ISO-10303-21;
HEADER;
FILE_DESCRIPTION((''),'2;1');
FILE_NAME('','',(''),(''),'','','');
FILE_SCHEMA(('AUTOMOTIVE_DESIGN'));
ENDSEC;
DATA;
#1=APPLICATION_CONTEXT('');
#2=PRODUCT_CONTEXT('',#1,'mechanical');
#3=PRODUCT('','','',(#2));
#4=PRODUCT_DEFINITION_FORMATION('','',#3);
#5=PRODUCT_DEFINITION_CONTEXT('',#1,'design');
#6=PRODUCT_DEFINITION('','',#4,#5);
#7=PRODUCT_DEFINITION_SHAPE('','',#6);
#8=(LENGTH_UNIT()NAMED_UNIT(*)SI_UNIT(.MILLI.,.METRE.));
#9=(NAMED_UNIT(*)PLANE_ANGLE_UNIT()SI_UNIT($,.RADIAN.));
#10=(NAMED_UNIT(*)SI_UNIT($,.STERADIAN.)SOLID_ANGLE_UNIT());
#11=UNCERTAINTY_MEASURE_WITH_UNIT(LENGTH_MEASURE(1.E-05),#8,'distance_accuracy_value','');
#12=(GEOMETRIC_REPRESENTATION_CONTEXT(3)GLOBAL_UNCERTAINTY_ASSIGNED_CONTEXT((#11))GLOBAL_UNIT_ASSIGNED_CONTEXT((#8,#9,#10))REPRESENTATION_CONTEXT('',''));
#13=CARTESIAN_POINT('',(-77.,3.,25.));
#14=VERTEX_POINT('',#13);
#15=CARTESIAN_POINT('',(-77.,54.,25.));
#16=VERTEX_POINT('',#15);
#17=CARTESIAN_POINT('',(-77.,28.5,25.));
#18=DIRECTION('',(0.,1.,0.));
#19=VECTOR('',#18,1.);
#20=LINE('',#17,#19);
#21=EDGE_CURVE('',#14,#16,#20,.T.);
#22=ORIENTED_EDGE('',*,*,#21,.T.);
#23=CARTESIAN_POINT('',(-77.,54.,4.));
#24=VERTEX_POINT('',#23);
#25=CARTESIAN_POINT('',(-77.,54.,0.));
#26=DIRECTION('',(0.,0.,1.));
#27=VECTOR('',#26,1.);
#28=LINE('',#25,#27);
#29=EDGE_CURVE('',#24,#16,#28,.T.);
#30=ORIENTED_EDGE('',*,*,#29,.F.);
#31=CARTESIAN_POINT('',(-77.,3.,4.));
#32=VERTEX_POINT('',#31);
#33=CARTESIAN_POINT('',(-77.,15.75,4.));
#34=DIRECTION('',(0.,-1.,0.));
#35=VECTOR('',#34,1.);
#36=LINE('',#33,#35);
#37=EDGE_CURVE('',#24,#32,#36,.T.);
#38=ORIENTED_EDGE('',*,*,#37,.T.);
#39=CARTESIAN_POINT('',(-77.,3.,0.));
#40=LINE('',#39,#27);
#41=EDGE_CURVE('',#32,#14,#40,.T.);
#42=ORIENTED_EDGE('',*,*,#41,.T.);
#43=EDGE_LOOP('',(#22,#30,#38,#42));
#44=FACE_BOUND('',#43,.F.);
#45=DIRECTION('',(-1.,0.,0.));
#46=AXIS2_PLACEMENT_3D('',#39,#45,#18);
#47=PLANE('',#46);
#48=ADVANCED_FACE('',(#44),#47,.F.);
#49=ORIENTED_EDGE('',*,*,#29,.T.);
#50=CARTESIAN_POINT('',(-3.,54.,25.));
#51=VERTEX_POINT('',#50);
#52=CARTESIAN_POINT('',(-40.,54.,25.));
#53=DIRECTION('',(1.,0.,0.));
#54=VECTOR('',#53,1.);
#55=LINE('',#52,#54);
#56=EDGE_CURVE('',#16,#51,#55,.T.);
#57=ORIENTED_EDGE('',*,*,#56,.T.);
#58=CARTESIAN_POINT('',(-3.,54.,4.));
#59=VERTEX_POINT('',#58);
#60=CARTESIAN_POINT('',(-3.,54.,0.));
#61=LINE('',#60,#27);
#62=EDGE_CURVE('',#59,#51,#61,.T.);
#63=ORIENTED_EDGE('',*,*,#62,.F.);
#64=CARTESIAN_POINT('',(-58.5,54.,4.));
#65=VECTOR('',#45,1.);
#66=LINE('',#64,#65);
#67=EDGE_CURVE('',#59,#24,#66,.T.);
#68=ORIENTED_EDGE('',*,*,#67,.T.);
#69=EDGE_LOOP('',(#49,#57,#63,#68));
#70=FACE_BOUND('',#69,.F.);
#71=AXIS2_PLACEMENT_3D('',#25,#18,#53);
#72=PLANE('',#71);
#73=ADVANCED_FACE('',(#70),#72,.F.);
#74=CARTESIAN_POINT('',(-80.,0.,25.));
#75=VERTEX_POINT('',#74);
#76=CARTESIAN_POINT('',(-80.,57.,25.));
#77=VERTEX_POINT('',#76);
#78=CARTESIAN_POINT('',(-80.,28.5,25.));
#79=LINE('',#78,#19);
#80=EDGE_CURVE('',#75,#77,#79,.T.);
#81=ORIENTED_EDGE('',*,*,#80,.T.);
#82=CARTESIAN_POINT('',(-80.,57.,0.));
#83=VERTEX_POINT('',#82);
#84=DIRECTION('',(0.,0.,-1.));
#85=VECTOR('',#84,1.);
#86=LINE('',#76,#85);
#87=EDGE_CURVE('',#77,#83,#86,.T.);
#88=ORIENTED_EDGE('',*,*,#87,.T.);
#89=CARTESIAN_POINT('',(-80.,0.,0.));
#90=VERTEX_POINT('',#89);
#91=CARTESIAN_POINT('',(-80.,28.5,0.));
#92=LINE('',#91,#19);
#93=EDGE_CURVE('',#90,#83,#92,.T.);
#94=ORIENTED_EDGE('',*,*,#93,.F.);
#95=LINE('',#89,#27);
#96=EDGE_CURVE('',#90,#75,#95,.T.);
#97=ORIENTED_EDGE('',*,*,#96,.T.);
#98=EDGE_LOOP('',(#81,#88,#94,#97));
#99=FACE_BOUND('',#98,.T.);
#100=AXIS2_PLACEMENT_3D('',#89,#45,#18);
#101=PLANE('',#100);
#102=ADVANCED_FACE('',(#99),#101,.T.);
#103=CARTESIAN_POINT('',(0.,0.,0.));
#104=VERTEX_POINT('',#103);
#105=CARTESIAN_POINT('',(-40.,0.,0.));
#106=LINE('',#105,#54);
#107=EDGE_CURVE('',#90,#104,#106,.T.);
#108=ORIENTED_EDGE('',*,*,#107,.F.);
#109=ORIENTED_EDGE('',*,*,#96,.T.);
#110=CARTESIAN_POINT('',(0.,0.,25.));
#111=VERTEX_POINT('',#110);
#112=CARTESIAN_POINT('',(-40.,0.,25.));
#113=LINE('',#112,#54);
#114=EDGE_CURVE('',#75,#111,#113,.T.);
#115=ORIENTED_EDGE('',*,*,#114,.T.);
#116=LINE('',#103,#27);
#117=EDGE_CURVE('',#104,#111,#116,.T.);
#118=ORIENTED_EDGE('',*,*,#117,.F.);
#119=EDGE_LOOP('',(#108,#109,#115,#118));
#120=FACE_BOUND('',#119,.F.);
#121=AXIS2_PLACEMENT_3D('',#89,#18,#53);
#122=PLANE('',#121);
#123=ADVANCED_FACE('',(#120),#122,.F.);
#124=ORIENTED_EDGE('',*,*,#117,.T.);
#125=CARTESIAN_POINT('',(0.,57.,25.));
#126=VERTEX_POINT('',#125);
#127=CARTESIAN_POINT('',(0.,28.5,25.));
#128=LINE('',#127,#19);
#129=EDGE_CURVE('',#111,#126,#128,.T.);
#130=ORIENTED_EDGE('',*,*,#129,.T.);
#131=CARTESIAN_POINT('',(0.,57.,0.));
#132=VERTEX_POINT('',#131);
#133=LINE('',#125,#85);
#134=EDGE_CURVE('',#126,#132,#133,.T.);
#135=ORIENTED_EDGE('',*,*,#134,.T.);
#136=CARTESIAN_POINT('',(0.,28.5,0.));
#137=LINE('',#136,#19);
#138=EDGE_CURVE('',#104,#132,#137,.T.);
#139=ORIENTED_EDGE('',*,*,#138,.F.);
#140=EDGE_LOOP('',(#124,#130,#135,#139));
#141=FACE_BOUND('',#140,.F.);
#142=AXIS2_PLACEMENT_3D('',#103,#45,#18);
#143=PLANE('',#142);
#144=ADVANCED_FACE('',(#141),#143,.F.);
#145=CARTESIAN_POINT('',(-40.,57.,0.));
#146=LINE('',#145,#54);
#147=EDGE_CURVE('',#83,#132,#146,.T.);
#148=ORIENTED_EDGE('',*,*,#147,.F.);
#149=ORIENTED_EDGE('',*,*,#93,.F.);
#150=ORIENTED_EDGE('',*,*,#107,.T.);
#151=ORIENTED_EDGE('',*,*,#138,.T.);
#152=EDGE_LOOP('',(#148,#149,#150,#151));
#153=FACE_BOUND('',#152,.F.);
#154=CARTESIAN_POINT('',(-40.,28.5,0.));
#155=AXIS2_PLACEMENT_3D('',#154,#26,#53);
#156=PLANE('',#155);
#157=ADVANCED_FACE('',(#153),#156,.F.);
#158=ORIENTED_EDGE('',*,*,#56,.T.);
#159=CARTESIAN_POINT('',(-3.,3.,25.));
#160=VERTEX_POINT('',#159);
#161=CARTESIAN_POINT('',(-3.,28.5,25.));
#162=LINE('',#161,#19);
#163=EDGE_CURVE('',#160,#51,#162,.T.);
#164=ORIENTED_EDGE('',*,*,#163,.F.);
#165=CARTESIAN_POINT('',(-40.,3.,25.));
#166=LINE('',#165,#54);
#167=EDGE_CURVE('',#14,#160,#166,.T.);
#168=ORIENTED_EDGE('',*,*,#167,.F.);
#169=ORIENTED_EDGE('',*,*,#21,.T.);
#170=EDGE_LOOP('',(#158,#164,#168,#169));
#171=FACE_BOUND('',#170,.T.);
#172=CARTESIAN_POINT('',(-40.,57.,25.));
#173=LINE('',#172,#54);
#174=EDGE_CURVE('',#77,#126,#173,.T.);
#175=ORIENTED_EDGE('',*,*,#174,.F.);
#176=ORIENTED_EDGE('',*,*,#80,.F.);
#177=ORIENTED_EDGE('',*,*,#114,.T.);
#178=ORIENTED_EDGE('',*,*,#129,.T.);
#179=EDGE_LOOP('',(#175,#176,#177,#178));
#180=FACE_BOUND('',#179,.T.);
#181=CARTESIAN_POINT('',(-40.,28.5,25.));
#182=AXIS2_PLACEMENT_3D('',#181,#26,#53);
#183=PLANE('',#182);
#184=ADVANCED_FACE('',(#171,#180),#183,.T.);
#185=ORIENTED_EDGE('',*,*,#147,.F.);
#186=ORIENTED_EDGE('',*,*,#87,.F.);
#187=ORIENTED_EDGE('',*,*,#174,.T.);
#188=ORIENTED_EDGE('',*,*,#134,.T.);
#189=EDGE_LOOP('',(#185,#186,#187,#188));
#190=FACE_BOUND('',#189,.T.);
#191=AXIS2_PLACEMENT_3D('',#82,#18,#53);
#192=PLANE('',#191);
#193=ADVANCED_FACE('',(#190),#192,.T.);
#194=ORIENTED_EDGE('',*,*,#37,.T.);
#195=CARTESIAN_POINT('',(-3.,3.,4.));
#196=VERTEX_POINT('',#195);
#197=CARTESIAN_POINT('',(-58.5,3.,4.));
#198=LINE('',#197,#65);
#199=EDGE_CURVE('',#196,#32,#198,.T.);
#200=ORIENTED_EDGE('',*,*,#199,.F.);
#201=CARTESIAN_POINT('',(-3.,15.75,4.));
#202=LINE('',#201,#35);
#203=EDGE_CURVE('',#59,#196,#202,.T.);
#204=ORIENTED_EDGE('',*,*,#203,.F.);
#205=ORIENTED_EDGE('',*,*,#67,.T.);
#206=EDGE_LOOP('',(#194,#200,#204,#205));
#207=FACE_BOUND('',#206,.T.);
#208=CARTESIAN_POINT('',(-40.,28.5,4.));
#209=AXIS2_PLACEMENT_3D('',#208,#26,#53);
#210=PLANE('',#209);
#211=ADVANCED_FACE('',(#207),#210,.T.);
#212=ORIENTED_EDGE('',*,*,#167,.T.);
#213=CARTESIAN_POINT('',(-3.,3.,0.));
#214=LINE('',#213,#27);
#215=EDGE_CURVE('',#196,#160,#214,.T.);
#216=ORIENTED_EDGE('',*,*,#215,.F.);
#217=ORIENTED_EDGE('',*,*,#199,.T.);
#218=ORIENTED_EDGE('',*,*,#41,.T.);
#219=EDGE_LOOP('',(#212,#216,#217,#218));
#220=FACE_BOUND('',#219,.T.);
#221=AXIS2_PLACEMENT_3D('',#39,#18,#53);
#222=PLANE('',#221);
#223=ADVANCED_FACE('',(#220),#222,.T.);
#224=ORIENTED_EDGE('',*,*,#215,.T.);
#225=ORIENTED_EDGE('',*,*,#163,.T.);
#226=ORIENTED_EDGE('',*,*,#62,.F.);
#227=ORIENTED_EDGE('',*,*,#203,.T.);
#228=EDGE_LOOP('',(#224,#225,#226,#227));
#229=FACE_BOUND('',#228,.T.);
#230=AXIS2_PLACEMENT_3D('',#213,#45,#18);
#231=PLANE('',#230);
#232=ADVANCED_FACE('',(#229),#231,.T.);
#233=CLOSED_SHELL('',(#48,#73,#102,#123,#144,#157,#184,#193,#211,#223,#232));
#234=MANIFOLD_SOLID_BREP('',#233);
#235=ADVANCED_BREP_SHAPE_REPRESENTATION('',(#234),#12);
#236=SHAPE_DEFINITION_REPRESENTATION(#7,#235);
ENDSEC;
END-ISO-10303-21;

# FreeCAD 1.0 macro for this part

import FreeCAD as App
import Part
import Sketcher
from FreeCAD import Vector

doc = App.newDocument("Part")
body = doc.addObject("PartDesign::Body", "Body")

# Sketch on XY plane
sketch1 = body.newObject("Sketcher::SketchObject", "Sketch")
sketch1.AttachmentSupport = (doc.getObject("XY_Plane"), [""])
sketch1.MapMode = "FlatFace"
sketch1.addGeometry([
    Part.LineSegment(Vector(-80, 57, 0), Vector(-80, 0, 0)),
    Part.LineSegment(Vector(-80, 0, 0), Vector(0, 0, 0)),
    Part.LineSegment(Vector(0, 0, 0), Vector(0, 57, 0)),
    Part.LineSegment(Vector(0, 57, 0), Vector(-80, 57, 0)),
], False)
sketch1.addConstraint([
    Sketcher.Constraint("Coincident", 0, 2, 1, 1),
    Sketcher.Constraint("Coincident", 1, 2, 2, 1),
    Sketcher.Constraint("Coincident", 2, 2, 3, 1),
    Sketcher.Constraint("Coincident", 3, 2, 0, 1),
    Sketcher.Constraint("Vertical", 0),
    Sketcher.Constraint("Horizontal", 1),
    Sketcher.Constraint("Vertical", 2),
    Sketcher.Constraint("Horizontal", 3),
    Sketcher.Constraint("Coincident", 1, 2, -1, 1),
    Sketcher.Constraint("DistanceX", 1, 1, 1, 2, 80.0),
    Sketcher.Constraint("DistanceY", 0, 2, 0, 1, 57.0),
])
pad1 = body.newObject("PartDesign::Pad", "Pad")
pad1.Profile = sketch1
pad1.Length = 4

# Sketch on XY plane
sketch2 = body.newObject("Sketcher::SketchObject", "Sketch001")
sketch2.AttachmentSupport = (doc.getObject("XY_Plane"), [""])
sketch2.MapMode = "FlatFace"
sketch2.addGeometry([
    Part.LineSegment(Vector(-80, 57, 0), Vector(-80, 0, 0)),  # 0
    Part.LineSegment(Vector(-80, 0, 0), Vector(0, 0, 0)),  # 1
    Part.LineSegment(Vector(0, 0, 0), Vector(0, 57, 0)),  # 2
    Part.LineSegment(Vector(0, 57, 0), Vector(-80, 57, 0)),  # 3
    Part.LineSegment(Vector(-3, 3, 0), Vector(-77, 3, 0)),  # 4
    Part.LineSegment(Vector(-77, 3, 0), Vector(-77, 54, 0)),  # 5
    Part.LineSegment(Vector(-77, 54, 0), Vector(-3, 54, 0)),  # 6
    Part.LineSegment(Vector(-3, 54, 0), Vector(-3, 3, 0)),  # 7
], False)
sketch2.addConstraint([
    Sketcher.Constraint("Coincident", 0, 2, 1, 1),
    Sketcher.Constraint("Coincident", 1, 2, 2, 1),
    Sketcher.Constraint("Coincident", 2, 2, 3, 1),
    Sketcher.Constraint("Coincident", 3, 2, 0, 1),
    Sketcher.Constraint("Coincident", 4, 2, 5, 1),
    Sketcher.Constraint("Coincident", 5, 2, 6, 1),
    Sketcher.Constraint("Coincident", 6, 2, 7, 1),
    Sketcher.Constraint("Coincident", 7, 2, 4, 1),
    Sketcher.Constraint("Vertical", 0),
    Sketcher.Constraint("Horizontal", 1),
    Sketcher.Constraint("Vertical", 2),
    Sketcher.Constraint("Horizontal", 3),
    Sketcher.Constraint("Horizontal", 4),
    Sketcher.Constraint("Vertical", 5),
    Sketcher.Constraint("Horizontal", 6),
    Sketcher.Constraint("Vertical", 7),
    Sketcher.Constraint("Coincident", 1, 2, -1, 1),
    Sketcher.Constraint("DistanceX", 1, 1, 1, 2, 80.0),
    Sketcher.Constraint("DistanceX", 4, 2, 4, 1, 74.0),
    Sketcher.Constraint("DistanceY", 0, 2, 0, 1, 57.0),
    Sketcher.Constraint("DistanceY", 5, 1, 5, 2, 51.0),
    Sketcher.Constraint("DistanceX", 4, 2, -1, 1, 77.0),
    Sketcher.Constraint("DistanceY", -1, 1, 4, 2, 3.0),
])
pad2 = body.newObject("PartDesign::Pad", "Pad001")
pad2.Profile = sketch2
pad2.Length = 25

doc.recompute()
